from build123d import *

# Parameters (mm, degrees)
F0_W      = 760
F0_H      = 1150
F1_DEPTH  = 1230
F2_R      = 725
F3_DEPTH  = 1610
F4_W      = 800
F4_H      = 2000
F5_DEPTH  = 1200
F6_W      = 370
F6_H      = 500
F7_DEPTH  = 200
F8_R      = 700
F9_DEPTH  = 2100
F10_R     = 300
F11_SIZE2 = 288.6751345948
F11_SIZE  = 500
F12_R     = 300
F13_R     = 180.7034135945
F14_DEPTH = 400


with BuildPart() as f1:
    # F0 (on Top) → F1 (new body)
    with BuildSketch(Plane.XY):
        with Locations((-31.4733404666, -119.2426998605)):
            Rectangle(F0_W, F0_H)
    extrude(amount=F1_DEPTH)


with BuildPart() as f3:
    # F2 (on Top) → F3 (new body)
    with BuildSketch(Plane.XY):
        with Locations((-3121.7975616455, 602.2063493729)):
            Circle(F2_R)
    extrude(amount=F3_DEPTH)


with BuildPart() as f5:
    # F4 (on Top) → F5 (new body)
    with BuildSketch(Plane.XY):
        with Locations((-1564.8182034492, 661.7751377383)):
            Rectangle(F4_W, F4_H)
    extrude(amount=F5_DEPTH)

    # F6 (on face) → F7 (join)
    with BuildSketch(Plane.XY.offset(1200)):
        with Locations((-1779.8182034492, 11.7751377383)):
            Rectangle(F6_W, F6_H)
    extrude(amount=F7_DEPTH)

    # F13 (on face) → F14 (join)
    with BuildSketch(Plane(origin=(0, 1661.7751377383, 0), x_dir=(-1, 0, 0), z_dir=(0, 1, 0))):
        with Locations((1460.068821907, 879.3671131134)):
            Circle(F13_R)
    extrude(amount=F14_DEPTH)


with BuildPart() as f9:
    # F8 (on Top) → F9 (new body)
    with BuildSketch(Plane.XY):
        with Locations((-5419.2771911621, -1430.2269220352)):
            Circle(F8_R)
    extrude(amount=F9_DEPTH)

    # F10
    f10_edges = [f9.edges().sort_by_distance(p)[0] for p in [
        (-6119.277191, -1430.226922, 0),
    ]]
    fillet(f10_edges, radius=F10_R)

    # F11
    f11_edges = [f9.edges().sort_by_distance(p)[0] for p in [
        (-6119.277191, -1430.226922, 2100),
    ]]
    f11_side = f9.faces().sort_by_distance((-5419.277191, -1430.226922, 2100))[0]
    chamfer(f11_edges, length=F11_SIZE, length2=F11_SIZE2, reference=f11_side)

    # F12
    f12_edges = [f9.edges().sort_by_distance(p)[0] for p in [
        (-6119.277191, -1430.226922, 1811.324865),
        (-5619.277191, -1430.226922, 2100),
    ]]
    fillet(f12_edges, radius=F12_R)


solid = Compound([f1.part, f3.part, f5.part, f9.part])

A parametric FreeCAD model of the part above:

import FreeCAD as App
import Part
import Sketcher
from FreeCAD import Vector
Q = App.Units.Quantity


def edges_at(feature, points):
    """Names of the edges that pass closest to the given points."""
    edges = feature.Shape.Edges
    near = lambda p: min(range(len(edges)), key=lambda i: edges[i].distToShape(Part.Vertex(*p))[0])
    return sorted({f"Edge{near(p) + 1}" for p in points})


def add_polygon(sketch, points):
    """Adds a closed chain of lines whose ends are joined by coincident constraints."""
    first, n = sketch.GeometryCount, len(points)
    for a, b in zip(points, points[1:] + points[:1]):
        sketch.addGeometry(Part.LineSegment(App.Vector(*a, 0), App.Vector(*b, 0)), False)
    for i in range(n):
        sketch.addConstraint(Sketcher.Constraint("Coincident", first + i, 2, first + (i + 1) % n, 1))

doc = App.newDocument("Part")
body = doc.addObject("PartDesign::Body", "Body")

# Sketch on XY plane
sketch1 = body.newObject("Sketcher::SketchObject", "Sketch")
sketch1.AttachmentSupport = (doc.getObject("XY_Plane"), [""])
sketch1.MapMode = "FlatFace"
add_polygon(sketch1, [(-411.47334, 455.7573), (-411.47334, -694.2427), (348.52666, -694.2427), (348.52666, 455.7573)])  # lines 0-3
sketch1.addConstraint([
    Sketcher.Constraint("Vertical", 0),
    Sketcher.Constraint("Horizontal", 1),
    Sketcher.Constraint("Vertical", 2),
    Sketcher.Constraint("Horizontal", 3),
    Sketcher.Constraint("DistanceX", 1, 1, 1, 2, Q("760 mm")),
    Sketcher.Constraint("DistanceY", 0, 2, 0, 1, Q("1150 mm")),
    Sketcher.Constraint("DistanceY", 0, 2, -1, 1, Q("694.2427 mm")),
    Sketcher.Constraint("DistanceX", 0, 2, -1, 1, Q("411.47334 mm")),
])
pad1 = body.newObject("PartDesign::Pad", "Pad")
pad1.Profile = sketch1
pad1.Length = 1230
body2 = doc.addObject("PartDesign::Body", "Body001")

# Sketch on XY plane
sketch2 = body2.newObject("Sketcher::SketchObject", "Sketch001")
sketch2.AttachmentSupport = (doc.getObject("XY_Plane001"), [""])
sketch2.MapMode = "FlatFace"
sketch2.addGeometry(Part.Circle(Vector(-3121.797562, 602.206349, 0), Vector(0, 0, 1), 725), False)
sketch2.addConstraint([
    Sketcher.Constraint("Diameter", 0, Q("1450 mm")),
    Sketcher.Constraint("DistanceX", 0, 3, -1, 1, Q("3121.797562 mm")),
    Sketcher.Constraint("DistanceY", -1, 1, 0, 3, Q("602.206349 mm")),
])
pad2 = body2.newObject("PartDesign::Pad", "Pad001")
pad2.Profile = sketch2
pad2.Length = 1610
body3 = doc.addObject("PartDesign::Body", "Body002")

# Sketch on XY plane
sketch3 = body3.newObject("Sketcher::SketchObject", "Sketch002")
sketch3.AttachmentSupport = (doc.getObject("XY_Plane002"), [""])
sketch3.MapMode = "FlatFace"
add_polygon(sketch3, [(-1964.818203, 1661.775138), (-1964.818203, -338.224862), (-1164.818203, -338.224862), (-1164.818203, 1661.775138)])  # lines 0-3
sketch3.addConstraint([
    Sketcher.Constraint("Vertical", 0),
    Sketcher.Constraint("Horizontal", 1),
    Sketcher.Constraint("Vertical", 2),
    Sketcher.Constraint("Horizontal", 3),
    Sketcher.Constraint("DistanceX", 1, 1, 1, 2, Q("800 mm")),
    Sketcher.Constraint("DistanceY", 0, 2, 0, 1, Q("2000 mm")),
    Sketcher.Constraint("DistanceX", 0, 2, -1, 1, Q("1964.818203 mm")),
    Sketcher.Constraint("DistanceY", 0, 2, -1, 1, Q("338.224862 mm")),
])
pad3 = body3.newObject("PartDesign::Pad", "Pad002")
pad3.Profile = sketch3
pad3.Length = 1200

# Sketch on XY plane
sketch4 = body3.newObject("Sketcher::SketchObject", "Sketch003")
sketch4.AttachmentSupport = (doc.getObject("XY_Plane002"), [""])
sketch4.MapMode = "FlatFace"
sketch4.AttachmentOffset = App.Placement(Vector(0, 0, 1200), App.Rotation())
add_polygon(sketch4, [(-1964.818203, 261.775138), (-1964.818203, -238.224862), (-1594.818203, -238.224862), (-1594.818203, 261.775138)])  # lines 0-3
sketch4.addConstraint([
    Sketcher.Constraint("Vertical", 0),
    Sketcher.Constraint("Horizontal", 1),
    Sketcher.Constraint("Vertical", 2),
    Sketcher.Constraint("Horizontal", 3),
    Sketcher.Constraint("DistanceX", 1, 1, 1, 2, Q("370 mm")),
    Sketcher.Constraint("DistanceY", 0, 2, 0, 1, Q("500 mm")),
    Sketcher.Constraint("DistanceX", 0, 2, -1, 1, Q("1964.818203 mm")),
    Sketcher.Constraint("DistanceY", 0, 2, -1, 1, Q("238.224862 mm")),
])
pad4 = body3.newObject("PartDesign::Pad", "Pad003")
pad4.Profile = sketch4
pad4.Length = 200

# Sketch on XZ plane
sketch5 = body3.newObject("Sketcher::SketchObject", "Sketch004")
sketch5.AttachmentSupport = (doc.getObject("XZ_Plane002"), [""])
sketch5.MapMode = "FlatFace"
sketch5.AttachmentOffset = App.Placement(Vector(0, 0, -1661.775138), App.Rotation())
sketch5.addGeometry(Part.Circle(Vector(-1460.068822, 879.367113, 0), Vector(0, 0, 1), 180.703414), False)
sketch5.addConstraint([
    Sketcher.Constraint("Diameter", 0, Q("361.406827 mm")),
    Sketcher.Constraint("DistanceX", 0, 3, -1, 1, Q("1460.068822 mm")),
    Sketcher.Constraint("DistanceY", -1, 1, 0, 3, Q("879.367113 mm")),
])
pad5 = body3.newObject("PartDesign::Pad", "Pad004")
pad5.Profile = sketch5
pad5.Length = 400
pad5.Reversed = True
body4 = doc.addObject("PartDesign::Body", "Body003")

# Sketch on XY plane
sketch6 = body4.newObject("Sketcher::SketchObject", "Sketch005")
sketch6.AttachmentSupport = (doc.getObject("XY_Plane003"), [""])
sketch6.MapMode = "FlatFace"
sketch6.addGeometry(Part.Circle(Vector(-5419.277191, -1430.226922, 0), Vector(0, 0, 1), 700), False)
sketch6.addConstraint([
    Sketcher.Constraint("Diameter", 0, Q("1400 mm")),
    Sketcher.Constraint("DistanceX", 0, 3, -1, 1, Q("5419.277191 mm")),
    Sketcher.Constraint("DistanceY", 0, 3, -1, 1, Q("1430.226922 mm")),
])
pad6 = body4.newObject("PartDesign::Pad", "Pad005")
pad6.Profile = sketch6
pad6.Length = 2100
doc.recompute()

fillet = body4.newObject("PartDesign::Fillet", "Fillet")
fillet.Base = (pad6, edges_at(pad6, [(-6119.277, -1430.227, 0)]))
fillet.Radius = 300
doc.recompute()

chamfer = body4.newObject("PartDesign::Chamfer", "Chamfer")
chamfer.Base = (fillet, edges_at(fillet, [(-6119.277, -1430.227, 2100)]))
chamfer.ChamferType = "Two distances"
chamfer.Size = 500
chamfer.Size2 = 288.675135
chamfer.FlipDirection = True
doc.recompute()

fillet2 = body4.newObject("PartDesign::Fillet", "Fillet001")
fillet2.Base = (chamfer, edges_at(chamfer, [(-6119.277, -1430.227, 1811.325), (-5619.277, -1430.227, 2100)]))
fillet2.Radius = 300

doc.recompute()
